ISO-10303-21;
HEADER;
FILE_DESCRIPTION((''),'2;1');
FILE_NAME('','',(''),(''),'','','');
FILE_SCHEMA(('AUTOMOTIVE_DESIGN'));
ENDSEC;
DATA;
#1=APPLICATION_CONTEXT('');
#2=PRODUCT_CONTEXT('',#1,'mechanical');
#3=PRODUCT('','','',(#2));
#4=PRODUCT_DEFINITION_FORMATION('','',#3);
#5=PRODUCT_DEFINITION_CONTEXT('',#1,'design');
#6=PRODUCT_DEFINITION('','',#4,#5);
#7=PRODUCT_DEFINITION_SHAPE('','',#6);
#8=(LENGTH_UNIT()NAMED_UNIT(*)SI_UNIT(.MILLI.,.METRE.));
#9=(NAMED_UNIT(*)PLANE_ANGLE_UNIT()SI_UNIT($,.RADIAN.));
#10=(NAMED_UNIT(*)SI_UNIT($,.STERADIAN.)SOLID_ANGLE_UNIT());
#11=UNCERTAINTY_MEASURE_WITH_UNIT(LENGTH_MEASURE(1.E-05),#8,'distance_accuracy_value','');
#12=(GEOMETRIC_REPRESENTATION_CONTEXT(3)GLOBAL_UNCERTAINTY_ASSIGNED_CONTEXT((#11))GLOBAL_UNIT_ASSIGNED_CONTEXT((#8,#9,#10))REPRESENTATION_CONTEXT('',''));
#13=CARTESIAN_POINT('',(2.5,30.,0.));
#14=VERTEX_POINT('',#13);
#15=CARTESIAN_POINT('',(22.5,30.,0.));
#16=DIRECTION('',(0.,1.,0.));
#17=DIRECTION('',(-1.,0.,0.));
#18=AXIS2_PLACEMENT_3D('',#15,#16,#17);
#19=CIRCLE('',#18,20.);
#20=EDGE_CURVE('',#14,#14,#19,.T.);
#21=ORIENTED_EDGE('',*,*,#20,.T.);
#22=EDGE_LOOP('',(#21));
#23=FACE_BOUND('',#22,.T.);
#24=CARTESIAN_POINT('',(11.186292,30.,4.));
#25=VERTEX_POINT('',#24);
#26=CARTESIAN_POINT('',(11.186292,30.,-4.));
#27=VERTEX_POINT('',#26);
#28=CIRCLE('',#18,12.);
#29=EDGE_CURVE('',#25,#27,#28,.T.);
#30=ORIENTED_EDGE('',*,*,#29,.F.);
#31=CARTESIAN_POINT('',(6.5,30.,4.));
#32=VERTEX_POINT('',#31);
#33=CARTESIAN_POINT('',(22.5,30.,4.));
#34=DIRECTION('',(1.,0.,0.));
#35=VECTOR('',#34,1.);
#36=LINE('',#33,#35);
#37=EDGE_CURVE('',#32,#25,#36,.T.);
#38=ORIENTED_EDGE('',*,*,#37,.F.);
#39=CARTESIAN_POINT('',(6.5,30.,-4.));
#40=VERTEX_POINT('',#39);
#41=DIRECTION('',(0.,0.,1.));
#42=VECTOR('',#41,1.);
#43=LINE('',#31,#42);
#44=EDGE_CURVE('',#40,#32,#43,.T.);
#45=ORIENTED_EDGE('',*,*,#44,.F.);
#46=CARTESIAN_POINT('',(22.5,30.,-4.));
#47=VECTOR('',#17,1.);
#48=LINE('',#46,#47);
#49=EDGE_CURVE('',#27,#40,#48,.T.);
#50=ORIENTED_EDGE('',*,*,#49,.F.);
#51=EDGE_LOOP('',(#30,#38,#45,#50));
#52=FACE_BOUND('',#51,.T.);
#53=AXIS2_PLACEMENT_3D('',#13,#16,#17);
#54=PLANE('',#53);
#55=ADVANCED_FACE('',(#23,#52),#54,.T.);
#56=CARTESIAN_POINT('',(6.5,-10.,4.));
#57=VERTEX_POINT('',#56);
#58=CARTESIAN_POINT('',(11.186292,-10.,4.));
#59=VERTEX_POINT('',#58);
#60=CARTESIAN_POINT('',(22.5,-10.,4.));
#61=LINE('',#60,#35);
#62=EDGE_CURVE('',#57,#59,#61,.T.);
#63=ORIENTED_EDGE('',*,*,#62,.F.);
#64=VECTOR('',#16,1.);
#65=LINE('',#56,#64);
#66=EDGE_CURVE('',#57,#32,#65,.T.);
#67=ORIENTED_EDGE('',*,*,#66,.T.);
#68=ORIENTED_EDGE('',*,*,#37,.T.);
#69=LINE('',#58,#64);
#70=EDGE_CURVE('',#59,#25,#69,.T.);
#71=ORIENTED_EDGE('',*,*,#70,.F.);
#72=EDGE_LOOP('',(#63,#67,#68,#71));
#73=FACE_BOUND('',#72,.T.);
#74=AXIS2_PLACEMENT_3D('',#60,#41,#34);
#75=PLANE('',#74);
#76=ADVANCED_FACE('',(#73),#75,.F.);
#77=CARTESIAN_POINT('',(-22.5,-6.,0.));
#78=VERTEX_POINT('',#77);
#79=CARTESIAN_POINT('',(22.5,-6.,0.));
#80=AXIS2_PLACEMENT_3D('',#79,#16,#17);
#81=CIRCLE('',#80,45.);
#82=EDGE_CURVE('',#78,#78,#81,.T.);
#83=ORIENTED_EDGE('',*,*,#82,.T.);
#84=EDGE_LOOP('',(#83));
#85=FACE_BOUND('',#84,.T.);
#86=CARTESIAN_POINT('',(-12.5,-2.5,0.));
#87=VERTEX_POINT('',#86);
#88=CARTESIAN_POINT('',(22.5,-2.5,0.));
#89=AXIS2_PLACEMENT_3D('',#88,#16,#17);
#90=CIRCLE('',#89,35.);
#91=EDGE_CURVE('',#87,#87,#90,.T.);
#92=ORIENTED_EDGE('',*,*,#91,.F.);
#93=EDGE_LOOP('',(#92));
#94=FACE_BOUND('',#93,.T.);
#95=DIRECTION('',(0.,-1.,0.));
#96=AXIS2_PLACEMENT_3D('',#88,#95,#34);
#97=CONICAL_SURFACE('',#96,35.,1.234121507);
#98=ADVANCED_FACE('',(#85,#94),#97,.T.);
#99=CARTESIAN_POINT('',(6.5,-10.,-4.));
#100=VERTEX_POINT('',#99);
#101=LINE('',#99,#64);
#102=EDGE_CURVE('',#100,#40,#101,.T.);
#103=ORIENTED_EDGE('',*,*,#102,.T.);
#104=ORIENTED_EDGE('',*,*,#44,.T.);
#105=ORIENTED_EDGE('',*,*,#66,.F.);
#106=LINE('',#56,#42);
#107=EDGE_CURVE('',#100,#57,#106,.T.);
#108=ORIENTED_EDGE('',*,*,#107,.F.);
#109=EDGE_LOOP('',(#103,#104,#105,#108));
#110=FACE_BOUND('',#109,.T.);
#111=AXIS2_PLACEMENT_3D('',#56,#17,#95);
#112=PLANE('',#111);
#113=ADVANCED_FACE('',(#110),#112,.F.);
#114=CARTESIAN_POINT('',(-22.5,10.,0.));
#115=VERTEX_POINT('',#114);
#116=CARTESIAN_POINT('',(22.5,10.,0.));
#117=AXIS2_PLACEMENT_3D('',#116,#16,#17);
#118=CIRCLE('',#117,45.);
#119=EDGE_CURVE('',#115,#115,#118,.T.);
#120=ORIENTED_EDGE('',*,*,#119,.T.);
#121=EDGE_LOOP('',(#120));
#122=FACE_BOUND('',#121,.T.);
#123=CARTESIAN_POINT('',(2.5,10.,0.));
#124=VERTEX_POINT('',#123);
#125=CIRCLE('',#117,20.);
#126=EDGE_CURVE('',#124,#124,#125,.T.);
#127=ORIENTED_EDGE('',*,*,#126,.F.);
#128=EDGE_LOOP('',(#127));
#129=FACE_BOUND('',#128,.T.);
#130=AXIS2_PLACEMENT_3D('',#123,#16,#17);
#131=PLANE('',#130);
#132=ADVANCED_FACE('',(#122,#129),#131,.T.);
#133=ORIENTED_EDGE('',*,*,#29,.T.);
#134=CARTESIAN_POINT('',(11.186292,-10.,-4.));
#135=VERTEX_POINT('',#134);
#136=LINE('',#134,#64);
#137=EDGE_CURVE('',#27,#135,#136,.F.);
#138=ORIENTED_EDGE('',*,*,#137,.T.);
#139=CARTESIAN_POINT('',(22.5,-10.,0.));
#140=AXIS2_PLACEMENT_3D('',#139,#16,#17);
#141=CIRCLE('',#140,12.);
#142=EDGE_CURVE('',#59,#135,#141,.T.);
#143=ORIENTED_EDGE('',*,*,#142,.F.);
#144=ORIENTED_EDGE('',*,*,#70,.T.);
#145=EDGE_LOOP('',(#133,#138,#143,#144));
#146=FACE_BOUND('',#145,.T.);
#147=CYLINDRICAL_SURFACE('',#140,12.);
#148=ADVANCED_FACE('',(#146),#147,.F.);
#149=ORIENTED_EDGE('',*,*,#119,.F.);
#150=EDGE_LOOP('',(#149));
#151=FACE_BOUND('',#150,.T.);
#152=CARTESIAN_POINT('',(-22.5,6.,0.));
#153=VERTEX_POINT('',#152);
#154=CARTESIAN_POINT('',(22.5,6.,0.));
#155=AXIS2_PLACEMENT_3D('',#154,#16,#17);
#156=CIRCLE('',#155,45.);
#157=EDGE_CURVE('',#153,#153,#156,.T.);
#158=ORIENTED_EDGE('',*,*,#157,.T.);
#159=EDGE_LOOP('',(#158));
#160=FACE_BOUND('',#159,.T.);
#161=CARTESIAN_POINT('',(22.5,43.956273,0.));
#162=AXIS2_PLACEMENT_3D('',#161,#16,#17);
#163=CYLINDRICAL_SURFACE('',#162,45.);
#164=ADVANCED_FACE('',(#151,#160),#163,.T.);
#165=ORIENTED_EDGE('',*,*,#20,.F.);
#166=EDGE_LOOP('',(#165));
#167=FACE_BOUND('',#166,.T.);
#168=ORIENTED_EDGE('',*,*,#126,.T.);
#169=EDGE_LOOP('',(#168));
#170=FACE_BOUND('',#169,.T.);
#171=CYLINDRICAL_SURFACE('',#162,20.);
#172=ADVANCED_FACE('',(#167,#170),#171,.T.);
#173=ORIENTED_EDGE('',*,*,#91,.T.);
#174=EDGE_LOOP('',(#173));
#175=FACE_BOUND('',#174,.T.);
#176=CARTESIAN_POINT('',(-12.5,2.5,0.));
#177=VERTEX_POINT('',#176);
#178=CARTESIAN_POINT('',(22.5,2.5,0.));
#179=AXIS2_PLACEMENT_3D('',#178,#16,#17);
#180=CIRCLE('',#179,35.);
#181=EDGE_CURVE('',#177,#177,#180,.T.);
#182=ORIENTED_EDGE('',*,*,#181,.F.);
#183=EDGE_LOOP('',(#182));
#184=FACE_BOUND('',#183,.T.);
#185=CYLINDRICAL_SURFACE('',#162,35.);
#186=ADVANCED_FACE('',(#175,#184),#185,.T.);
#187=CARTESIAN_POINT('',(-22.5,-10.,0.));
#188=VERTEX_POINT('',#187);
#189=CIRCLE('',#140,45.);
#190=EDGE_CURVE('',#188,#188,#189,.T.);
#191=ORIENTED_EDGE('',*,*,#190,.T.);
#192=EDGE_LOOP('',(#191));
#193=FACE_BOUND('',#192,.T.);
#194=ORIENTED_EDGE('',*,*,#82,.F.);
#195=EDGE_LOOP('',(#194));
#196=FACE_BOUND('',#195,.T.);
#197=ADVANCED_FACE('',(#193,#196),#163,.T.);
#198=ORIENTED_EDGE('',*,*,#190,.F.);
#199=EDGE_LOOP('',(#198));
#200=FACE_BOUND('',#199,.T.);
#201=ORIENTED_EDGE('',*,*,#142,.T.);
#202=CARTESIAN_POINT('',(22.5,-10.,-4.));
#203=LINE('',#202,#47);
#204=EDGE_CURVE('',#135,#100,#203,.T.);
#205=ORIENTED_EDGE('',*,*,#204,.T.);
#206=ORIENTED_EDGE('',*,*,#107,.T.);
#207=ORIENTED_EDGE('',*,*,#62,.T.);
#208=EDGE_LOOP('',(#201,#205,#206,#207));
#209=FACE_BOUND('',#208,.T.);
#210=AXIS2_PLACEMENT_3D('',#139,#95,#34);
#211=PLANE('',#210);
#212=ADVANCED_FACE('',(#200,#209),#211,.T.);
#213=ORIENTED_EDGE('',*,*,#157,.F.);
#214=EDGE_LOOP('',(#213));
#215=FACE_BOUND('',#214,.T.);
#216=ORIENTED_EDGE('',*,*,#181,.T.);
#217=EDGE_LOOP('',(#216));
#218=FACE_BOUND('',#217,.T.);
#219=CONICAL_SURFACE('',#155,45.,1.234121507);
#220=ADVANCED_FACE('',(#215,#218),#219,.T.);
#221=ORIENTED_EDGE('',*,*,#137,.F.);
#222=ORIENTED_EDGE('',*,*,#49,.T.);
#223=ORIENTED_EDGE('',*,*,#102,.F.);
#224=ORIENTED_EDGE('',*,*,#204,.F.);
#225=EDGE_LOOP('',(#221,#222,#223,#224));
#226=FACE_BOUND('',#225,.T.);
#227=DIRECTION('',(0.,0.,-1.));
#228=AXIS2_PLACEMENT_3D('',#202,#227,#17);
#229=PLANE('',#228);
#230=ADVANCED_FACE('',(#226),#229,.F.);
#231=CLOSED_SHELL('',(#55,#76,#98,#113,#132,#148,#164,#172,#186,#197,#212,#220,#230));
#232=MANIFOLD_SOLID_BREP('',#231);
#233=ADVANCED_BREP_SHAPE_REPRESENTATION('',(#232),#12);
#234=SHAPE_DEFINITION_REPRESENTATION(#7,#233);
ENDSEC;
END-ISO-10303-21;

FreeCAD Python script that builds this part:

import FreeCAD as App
import Part
import Sketcher
Q = App.Units.Quantity


def add_polygon(sketch, points):
    """Adds a closed chain of lines whose ends are joined by coincident constraints."""
    first, n = sketch.GeometryCount, len(points)
    for a, b in zip(points, points[1:] + points[:1]):
        sketch.addGeometry(Part.LineSegment(App.Vector(*a, 0), App.Vector(*b, 0)), False)
    for i in range(n):
        sketch.addConstraint(Sketcher.Constraint("Coincident", first + i, 2, first + (i + 1) % n, 1))

doc = App.newDocument("Part")
params = doc.addObject("Spreadsheet::Sheet", "Params")
for row, (alias, value) in enumerate([
    ("sketch1_width", "45 mm"),
    ("sketch1_width2", "20 mm"),
    ("sketch1_height", "5 mm"),
    ("sketch1_height2", "4 mm"),
    ("sketch1_height3", "40 mm"),
    ("revolution_angle", "360 deg"),
    ("sketch2_diameter", "24 mm"),
    ("sketch3_width", "16 mm"),
    ("sketch3_height", "8 mm"),
], start=1):
    params.set(f"A{row}", alias)
    params.set(f"B{row}", "=" + value)
    params.setAlias(f"B{row}", alias)

body = doc.addObject("PartDesign::Body", "Body")

# Sketch on XY plane
sketch1 = doc.addObject("Sketcher::SketchObject", "Sketch")
body.addObject(sketch1)
sketch1.AttachmentSupport = (doc.XY_Plane, [""])
sketch1.MapMode = "FlatFace"
add_polygon(sketch1, [(-12.5, 2.5), (-12.5, -2.5), (-22.5, -6), (-22.5, -10), (22.5, -10), (22.5, 30), (2.5, 30), (2.5, 10), (-22.5, 10), (-22.5, 6)])  # lines 0-9
sketch1.addGeometry(Part.LineSegment(App.Vector(22.5, 30, 0), App.Vector(22.5, -10, 0)), True)  # axis
sketch1.addConstraint([
    Sketcher.Constraint("Vertical", 0),
    Sketcher.Constraint("Vertical", 2),
    Sketcher.Constraint("Horizontal", 3),
    Sketcher.Constraint("Vertical", 4),
    Sketcher.Constraint("Horizontal", 5),
    Sketcher.Constraint("Vertical", 6),
    Sketcher.Constraint("Horizontal", 7),
    Sketcher.Constraint("Vertical", 8),
    Sketcher.Constraint("Vertical", 10),
    Sketcher.Constraint("Coincident", 10, 1, 4, 2),
    Sketcher.Constraint("Symmetric", 3, 2, 7, 2, -1, 1),
    Sketcher.Constraint("Symmetric", 2, 2, 10, 2, -2),
    Sketcher.Constraint("Equal", 5, 6),
    Sketcher.Constraint("Equal", 2, 8),
    Sketcher.Constraint("Equal", 1, 9),
    Sketcher.Constraint("DistanceX", 3, 1, 3, 2, Q("45 mm")),
    Sketcher.Constraint("DistanceX", 5, 2, 5, 1, Q("20 mm")),
    Sketcher.Constraint("DistanceY", 0, 2, 0, 1, Q("5 mm")),
    Sketcher.Constraint("DistanceY", 2, 2, 2, 1, Q("4 mm")),
    Sketcher.Constraint("DistanceY", 4, 1, 4, 2, Q("40 mm")),
    Sketcher.Constraint("DistanceX", 1, 2, 0, 2, Q("10 mm")),
])
sketch1.setExpression("Constraints[25]", "Params.sketch1_width")
sketch1.setExpression("Constraints[26]", "Params.sketch1_width2")
sketch1.setExpression("Constraints[27]", "Params.sketch1_height")
sketch1.setExpression("Constraints[28]", "Params.sketch1_height2")
sketch1.setExpression("Constraints[29]", "Params.sketch1_height3")
revolution = doc.addObject("PartDesign::Revolution", "Revolution")
body.addObject(revolution)
revolution.Profile = sketch1
revolution.ReferenceAxis = (sketch1, ["Axis0"])
revolution.setExpression("Angle", "Params.revolution_angle")

# Sketch on XZ plane
sketch2 = doc.addObject("Sketcher::SketchObject", "Sketch001")
body.addObject(sketch2)
sketch2.AttachmentSupport = (doc.XZ_Plane, [""])
sketch2.MapMode = "FlatFace"
sketch2.AttachmentOffset = App.Placement(App.Vector(0, 0, -30), App.Rotation())
sketch2.addGeometry(Part.Circle(App.Vector(22, 0, 0), App.Vector(0, 0, 1), 12), False)
sketch2.addConstraint([
    Sketcher.Constraint("PointOnObject", 0, 3, -1),
    Sketcher.Constraint("Diameter", 0, Q("24 mm")),
    Sketcher.Constraint("DistanceX", -1, 1, 0, 3, Q("22.5 mm")),
])
sketch2.setExpression("Constraints[1]", "Params.sketch2_diameter")
pocket1 = doc.addObject("PartDesign::Pocket", "Pocket")
body.addObject(pocket1)
pocket1.Profile = sketch2
pocket1.Type = "ThroughAll"
pocket1.Reversed = True

# Sketch on XZ plane
sketch3 = doc.addObject("Sketcher::SketchObject", "Sketch002")
body.addObject(sketch3)
sketch3.AttachmentSupport = (doc.XZ_Plane, [""])
sketch3.MapMode = "FlatFace"
sketch3.AttachmentOffset = App.Placement(App.Vector(0, 0, -30), App.Rotation())
add_polygon(sketch3, [(6, -4), (6, 4), (22, 4), (22, -4)])  # lines 0-3
sketch3.addConstraint([
    Sketcher.Constraint("Vertical", 0),
    Sketcher.Constraint("Horizontal", 1),
    Sketcher.Constraint("Vertical", 2),
    Sketcher.Constraint("Horizontal", 3),
    Sketcher.Constraint("DistanceX", 1, 1, 1, 2, Q("16 mm")),
    Sketcher.Constraint("DistanceY", 0, 1, 0, 2, Q("8 mm")),
    Sketcher.Constraint("DistanceY", -1, 1, 0, 2, Q("4 mm")),
    Sketcher.Constraint("DistanceX", -1, 1, 0, 2, Q("6.5 mm")),
])
sketch3.setExpression("Constraints[8]", "Params.sketch3_width")
sketch3.setExpression("Constraints[9]", "Params.sketch3_height")
pocket2 = doc.addObject("PartDesign::Pocket", "Pocket001")
body.addObject(pocket2)
pocket2.Profile = sketch3
pocket2.Type = "ThroughAll"
pocket2.Reversed = True

doc.recompute()
